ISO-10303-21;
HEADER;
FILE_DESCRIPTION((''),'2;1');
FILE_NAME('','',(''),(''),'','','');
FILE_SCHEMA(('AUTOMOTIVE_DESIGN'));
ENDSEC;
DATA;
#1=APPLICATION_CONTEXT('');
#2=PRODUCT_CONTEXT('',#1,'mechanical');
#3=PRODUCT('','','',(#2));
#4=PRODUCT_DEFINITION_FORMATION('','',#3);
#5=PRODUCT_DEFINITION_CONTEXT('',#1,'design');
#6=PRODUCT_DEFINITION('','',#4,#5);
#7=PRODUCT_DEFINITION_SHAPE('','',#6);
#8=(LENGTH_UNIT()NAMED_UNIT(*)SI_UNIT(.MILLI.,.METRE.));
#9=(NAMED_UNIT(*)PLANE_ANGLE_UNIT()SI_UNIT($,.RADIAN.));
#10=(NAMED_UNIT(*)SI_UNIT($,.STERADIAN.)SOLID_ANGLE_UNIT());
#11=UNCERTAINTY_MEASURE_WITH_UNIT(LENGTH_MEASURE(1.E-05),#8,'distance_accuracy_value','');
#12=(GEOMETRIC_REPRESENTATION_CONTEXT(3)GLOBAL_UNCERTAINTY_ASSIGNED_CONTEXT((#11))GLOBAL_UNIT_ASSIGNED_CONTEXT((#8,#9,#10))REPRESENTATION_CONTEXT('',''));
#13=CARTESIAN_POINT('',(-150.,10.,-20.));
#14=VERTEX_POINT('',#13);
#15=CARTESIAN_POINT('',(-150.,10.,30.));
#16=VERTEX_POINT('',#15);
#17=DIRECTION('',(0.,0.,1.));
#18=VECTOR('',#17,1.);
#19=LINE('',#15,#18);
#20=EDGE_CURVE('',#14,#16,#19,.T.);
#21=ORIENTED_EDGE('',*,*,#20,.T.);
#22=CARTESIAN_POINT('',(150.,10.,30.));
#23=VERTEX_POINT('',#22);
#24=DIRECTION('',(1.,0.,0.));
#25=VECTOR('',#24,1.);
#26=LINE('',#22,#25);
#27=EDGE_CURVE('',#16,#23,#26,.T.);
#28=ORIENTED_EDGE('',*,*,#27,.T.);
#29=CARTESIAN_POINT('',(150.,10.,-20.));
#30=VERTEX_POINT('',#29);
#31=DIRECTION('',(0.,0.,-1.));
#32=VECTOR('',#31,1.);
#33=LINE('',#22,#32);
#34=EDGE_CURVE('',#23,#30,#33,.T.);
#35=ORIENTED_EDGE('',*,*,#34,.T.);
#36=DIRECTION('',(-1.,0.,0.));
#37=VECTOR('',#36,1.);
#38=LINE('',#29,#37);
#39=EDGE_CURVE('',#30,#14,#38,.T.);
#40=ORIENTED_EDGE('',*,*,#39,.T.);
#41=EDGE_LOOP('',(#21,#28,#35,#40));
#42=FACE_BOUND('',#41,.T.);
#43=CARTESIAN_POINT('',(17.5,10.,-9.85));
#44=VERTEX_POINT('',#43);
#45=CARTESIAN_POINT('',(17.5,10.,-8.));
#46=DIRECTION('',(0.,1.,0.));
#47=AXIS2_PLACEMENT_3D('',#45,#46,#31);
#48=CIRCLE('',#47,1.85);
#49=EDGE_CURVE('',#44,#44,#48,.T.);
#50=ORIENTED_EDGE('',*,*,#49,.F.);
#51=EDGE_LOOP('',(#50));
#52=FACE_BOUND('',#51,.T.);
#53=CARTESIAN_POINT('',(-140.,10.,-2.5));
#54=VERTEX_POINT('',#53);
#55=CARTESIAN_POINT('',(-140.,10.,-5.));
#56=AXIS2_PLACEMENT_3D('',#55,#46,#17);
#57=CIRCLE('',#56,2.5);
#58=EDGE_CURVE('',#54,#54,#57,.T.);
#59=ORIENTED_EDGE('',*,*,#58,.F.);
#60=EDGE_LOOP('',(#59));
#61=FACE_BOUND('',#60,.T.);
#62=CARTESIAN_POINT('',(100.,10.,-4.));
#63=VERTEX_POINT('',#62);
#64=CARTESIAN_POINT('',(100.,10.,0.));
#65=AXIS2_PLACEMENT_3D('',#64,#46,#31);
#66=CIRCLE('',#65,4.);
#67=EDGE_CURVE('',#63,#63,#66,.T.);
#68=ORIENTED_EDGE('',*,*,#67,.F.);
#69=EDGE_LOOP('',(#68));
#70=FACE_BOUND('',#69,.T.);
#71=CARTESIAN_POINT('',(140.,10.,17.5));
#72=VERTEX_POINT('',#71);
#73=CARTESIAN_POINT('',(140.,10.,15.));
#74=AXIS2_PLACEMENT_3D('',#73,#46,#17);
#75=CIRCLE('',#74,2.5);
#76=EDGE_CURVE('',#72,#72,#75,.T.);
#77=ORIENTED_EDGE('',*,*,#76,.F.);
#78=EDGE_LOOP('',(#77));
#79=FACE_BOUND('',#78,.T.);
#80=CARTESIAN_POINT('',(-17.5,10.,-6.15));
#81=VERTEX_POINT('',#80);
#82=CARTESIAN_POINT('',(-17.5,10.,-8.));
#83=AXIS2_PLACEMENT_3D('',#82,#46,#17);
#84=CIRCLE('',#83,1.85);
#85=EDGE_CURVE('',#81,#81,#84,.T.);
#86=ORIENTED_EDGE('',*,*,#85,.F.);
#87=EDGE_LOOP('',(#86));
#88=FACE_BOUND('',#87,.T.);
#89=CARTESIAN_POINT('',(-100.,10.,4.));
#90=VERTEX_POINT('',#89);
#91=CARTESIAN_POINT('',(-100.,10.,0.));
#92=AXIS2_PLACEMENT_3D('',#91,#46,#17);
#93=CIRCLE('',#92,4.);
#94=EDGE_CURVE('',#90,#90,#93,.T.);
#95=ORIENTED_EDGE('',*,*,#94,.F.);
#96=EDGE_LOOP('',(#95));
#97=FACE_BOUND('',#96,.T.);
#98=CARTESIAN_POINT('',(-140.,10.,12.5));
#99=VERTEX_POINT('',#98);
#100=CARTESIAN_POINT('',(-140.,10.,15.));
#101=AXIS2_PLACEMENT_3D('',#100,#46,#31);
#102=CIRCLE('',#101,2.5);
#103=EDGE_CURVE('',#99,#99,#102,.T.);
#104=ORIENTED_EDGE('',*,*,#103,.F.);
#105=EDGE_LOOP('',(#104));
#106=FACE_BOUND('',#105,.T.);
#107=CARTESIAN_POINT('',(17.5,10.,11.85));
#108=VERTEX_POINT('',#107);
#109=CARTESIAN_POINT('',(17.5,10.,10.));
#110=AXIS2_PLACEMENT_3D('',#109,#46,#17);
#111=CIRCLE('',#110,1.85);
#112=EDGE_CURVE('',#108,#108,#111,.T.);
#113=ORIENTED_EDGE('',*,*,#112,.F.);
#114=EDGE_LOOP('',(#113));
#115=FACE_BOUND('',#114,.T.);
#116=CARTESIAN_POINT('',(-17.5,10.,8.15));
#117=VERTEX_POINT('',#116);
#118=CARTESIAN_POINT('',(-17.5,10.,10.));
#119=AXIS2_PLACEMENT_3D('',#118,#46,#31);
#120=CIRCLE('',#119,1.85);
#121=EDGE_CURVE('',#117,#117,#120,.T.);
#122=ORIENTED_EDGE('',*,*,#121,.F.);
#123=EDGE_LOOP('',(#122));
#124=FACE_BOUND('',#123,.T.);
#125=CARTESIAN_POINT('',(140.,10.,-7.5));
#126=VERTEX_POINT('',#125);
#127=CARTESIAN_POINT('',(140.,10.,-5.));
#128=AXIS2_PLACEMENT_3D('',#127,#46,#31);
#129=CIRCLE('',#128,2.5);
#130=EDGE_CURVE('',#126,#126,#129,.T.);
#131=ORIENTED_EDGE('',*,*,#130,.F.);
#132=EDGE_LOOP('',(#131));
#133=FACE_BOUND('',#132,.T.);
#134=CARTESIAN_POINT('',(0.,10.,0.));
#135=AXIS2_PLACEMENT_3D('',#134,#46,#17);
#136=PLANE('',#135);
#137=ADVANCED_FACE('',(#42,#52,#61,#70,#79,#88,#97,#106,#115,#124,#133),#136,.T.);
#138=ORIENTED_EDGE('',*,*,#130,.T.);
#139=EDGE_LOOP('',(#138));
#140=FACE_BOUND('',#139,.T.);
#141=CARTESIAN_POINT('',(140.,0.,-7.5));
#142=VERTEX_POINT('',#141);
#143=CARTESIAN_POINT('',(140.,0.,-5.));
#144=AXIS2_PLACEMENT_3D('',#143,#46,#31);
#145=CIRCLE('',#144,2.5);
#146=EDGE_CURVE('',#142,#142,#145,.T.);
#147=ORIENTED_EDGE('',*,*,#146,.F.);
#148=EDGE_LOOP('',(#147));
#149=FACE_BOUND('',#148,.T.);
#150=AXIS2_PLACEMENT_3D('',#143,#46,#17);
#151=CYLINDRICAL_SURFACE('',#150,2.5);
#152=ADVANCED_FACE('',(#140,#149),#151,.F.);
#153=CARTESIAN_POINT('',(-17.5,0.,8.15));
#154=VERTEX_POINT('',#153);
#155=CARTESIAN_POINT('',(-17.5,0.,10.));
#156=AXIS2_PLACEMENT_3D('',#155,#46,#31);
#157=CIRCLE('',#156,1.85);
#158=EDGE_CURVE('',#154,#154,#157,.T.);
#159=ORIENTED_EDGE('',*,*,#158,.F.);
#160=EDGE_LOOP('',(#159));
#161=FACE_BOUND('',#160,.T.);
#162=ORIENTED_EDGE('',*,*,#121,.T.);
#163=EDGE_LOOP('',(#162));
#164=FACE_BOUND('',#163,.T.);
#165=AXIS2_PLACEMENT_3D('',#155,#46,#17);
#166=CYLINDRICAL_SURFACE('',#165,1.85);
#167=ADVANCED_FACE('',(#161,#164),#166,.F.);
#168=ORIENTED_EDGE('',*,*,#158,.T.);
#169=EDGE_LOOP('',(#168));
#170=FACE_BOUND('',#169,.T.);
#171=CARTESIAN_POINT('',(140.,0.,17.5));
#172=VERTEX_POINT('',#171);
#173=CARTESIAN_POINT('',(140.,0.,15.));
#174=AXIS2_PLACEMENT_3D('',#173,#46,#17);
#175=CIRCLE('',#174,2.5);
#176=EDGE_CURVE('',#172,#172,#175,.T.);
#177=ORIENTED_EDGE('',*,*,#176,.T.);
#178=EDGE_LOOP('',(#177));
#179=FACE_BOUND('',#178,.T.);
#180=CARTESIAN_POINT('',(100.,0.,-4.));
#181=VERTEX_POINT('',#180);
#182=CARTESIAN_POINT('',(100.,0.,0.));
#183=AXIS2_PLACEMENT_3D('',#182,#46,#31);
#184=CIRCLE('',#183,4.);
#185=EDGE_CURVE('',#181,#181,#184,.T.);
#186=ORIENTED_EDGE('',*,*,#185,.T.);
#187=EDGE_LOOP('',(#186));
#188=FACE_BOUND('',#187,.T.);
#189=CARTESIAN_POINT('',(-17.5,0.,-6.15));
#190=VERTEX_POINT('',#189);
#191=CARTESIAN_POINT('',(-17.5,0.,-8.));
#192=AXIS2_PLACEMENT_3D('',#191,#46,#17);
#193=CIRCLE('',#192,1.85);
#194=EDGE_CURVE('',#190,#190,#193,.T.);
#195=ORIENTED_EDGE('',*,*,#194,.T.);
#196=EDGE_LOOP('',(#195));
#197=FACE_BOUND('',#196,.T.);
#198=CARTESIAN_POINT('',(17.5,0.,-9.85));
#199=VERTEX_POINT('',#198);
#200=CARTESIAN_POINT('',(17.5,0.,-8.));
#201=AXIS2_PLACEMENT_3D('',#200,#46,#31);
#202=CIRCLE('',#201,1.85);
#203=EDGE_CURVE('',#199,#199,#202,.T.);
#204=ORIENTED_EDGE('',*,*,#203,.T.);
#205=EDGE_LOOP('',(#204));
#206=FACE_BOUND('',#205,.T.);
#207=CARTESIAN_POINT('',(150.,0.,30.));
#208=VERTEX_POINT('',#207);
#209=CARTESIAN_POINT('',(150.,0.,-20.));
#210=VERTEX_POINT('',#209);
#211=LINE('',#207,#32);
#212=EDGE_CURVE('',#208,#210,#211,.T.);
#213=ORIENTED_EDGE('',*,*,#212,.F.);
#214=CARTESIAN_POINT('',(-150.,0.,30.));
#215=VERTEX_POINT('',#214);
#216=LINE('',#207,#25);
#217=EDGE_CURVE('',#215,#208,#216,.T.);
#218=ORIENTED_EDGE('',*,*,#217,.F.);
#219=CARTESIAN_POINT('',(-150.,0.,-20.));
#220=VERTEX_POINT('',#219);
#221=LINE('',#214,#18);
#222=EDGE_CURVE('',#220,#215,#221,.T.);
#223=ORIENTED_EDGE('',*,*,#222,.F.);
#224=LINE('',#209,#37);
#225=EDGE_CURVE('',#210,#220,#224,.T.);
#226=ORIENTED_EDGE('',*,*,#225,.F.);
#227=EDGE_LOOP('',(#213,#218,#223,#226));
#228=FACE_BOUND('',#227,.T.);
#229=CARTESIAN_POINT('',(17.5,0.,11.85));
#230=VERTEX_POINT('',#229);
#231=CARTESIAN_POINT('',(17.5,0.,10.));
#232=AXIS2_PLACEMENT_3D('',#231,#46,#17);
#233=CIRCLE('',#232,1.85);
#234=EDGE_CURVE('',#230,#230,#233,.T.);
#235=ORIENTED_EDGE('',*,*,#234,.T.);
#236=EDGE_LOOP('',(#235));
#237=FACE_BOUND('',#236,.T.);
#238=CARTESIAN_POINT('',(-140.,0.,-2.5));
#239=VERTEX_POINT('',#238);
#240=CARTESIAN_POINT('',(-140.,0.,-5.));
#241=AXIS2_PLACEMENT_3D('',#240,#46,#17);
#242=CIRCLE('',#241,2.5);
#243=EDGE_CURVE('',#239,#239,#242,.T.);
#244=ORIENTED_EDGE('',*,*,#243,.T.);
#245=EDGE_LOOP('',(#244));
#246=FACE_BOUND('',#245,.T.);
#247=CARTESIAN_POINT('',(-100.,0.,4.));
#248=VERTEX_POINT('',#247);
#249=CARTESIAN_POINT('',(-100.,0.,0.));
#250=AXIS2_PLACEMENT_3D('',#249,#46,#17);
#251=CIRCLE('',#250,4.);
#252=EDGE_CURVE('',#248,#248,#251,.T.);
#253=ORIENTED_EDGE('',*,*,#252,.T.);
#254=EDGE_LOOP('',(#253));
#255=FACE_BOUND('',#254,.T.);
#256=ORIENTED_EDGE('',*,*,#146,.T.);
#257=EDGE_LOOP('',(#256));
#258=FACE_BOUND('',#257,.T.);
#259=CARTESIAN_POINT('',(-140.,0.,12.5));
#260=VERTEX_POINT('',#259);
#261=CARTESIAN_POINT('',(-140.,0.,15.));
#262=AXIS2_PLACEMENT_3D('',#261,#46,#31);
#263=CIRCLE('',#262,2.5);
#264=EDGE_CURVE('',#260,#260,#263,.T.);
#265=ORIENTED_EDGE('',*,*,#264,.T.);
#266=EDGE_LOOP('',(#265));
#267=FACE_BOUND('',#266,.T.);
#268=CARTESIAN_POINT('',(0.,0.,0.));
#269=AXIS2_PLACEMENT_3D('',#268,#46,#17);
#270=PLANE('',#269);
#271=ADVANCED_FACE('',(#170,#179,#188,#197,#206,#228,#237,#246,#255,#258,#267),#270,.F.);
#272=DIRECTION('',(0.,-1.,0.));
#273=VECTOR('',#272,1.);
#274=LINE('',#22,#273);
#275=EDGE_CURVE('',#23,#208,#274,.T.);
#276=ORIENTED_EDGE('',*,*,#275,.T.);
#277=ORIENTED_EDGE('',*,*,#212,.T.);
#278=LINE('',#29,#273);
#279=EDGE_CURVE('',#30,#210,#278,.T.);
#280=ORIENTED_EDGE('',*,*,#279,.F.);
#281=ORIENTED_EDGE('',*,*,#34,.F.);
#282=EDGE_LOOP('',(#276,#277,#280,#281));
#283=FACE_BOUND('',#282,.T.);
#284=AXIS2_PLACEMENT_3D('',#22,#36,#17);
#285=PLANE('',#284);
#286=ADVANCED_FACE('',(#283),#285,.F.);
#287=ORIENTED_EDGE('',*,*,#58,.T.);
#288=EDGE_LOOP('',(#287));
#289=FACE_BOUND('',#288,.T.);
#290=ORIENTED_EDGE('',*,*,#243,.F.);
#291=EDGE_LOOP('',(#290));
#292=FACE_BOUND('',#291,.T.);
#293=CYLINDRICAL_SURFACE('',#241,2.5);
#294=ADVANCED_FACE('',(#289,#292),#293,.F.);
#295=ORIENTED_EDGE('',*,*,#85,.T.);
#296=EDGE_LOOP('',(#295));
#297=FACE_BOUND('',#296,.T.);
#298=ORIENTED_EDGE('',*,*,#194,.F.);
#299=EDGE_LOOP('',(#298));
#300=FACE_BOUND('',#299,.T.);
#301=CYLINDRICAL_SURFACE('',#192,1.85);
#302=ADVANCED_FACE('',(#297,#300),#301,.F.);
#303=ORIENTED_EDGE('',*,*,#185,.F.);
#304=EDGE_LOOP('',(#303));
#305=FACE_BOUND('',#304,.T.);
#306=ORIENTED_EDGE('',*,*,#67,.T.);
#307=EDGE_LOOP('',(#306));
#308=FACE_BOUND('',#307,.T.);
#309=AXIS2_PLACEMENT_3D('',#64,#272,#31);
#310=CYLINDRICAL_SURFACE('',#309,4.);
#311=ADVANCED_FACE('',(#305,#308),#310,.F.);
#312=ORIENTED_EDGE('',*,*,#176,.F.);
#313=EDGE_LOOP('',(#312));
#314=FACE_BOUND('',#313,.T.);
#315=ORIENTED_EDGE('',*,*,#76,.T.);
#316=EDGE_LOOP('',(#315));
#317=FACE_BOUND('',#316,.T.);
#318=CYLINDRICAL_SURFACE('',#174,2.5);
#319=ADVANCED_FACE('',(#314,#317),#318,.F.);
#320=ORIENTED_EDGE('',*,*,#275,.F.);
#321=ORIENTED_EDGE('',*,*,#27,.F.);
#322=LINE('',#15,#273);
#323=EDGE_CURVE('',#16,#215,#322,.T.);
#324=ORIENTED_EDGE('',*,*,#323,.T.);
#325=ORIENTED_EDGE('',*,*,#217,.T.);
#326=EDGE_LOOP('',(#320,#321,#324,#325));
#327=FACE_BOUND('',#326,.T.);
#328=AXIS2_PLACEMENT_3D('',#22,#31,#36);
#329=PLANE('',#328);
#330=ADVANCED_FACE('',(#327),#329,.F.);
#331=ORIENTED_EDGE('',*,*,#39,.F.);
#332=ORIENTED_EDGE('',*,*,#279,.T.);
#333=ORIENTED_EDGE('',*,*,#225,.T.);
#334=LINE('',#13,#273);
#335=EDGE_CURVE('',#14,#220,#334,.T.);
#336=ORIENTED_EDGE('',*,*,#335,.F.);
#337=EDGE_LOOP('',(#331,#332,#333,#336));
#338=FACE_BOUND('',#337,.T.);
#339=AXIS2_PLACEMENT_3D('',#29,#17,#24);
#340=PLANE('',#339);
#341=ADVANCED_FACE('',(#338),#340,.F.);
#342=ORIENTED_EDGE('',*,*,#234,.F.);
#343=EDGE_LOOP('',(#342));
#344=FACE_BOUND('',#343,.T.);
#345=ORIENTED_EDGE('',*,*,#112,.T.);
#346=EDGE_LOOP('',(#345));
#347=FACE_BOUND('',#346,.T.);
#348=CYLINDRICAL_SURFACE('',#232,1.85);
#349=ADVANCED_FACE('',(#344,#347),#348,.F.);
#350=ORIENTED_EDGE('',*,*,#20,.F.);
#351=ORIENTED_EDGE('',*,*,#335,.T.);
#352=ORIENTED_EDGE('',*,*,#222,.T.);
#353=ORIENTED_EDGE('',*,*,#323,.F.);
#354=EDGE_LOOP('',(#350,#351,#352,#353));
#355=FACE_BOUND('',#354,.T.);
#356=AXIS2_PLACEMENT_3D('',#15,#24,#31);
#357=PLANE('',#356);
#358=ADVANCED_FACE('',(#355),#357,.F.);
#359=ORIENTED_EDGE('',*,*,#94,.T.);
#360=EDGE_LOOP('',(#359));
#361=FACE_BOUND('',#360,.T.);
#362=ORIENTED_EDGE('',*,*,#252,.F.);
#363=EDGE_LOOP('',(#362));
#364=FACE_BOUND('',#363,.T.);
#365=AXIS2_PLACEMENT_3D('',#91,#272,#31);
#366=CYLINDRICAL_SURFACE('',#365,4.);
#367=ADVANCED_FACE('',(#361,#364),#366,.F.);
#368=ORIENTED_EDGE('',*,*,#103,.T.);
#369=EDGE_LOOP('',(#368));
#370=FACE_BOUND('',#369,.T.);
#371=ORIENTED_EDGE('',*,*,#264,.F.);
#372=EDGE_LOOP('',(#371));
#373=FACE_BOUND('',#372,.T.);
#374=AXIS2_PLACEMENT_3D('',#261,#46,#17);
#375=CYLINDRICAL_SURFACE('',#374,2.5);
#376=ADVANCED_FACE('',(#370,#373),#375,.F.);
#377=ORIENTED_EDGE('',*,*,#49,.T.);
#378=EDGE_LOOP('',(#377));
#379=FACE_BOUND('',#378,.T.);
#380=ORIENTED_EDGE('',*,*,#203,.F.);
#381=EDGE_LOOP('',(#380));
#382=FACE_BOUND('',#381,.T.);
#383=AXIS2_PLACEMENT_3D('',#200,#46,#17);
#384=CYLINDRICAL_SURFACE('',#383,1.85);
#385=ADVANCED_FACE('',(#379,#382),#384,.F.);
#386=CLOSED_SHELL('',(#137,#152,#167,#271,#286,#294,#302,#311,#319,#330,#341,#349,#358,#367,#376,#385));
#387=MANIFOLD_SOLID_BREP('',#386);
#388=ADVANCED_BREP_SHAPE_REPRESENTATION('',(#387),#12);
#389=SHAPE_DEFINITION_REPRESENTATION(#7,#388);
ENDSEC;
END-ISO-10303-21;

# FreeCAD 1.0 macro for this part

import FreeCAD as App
import Part
import Sketcher

V = App.Vector


def add_polygon(sketch, points):
    """Adds a closed chain of lines whose ends are joined by coincident constraints."""
    first, n = sketch.GeometryCount, len(points)
    for a, b in zip(points, points[1:] + points[:1]):
        sketch.addGeometry(Part.LineSegment(App.Vector(*a, 0), App.Vector(*b, 0)), False)
    for i in range(n):
        sketch.addConstraint(Sketcher.Constraint("Coincident", first + i, 2, first + (i + 1) % n, 1))

doc = App.newDocument("Part")
params = doc.addObject("Spreadsheet::Sheet", "Params")
for row, (alias, value) in enumerate([
    ("sketch1_diameter", "8 mm"),
    ("sketch1_width", "300 mm"),
    ("sketch1_height", "50 mm"),
    ("pad1_length", "10 mm"),
    ("sketch2_diameter", "5 mm"),
    ("sketch3_diameter", "3.7 mm"),
], start=1):
    params.set(f"A{row}", alias)
    params.set(f"B{row}", "=" + value)
    params.setAlias(f"B{row}", alias)

body = doc.addObject("PartDesign::Body", "Body")

sketch1 = doc.addObject("Sketcher::SketchObject", "Sketch")
body.addObject(sketch1)
sketch1.AttachmentSupport = (doc.XZ_Plane, [""])
sketch1.MapMode = "FlatFace"
add_polygon(sketch1, [(-150, -20), (-150, 30), (150, 30), (150, -20)])
sketch1.addGeometry(Part.Circle(V(-100, 0, 0), V(0, 0, 1), 4), False)
sketch1.addGeometry(Part.Circle(V(100, 0, 0), V(0, 0, 1), 4), False)
sketch1.addConstraint(Sketcher.Constraint("Vertical", 0))
sketch1.addConstraint(Sketcher.Constraint("Horizontal", 1))
sketch1.addConstraint(Sketcher.Constraint("Vertical", 2))
sketch1.addConstraint(Sketcher.Constraint("Horizontal", 3))
sketch1.addConstraint(Sketcher.Constraint("Equal", 4, 5))
sketch1.addConstraint(Sketcher.Constraint("Symmetric", 4, 3, 5, 3, -1, 1))
sketch1.addConstraint(Sketcher.Constraint("PointOnObject", 4, 3, -1))
sketch1.addConstraint(Sketcher.Constraint("Diameter", 4, 8.0))
sketch1.addConstraint(Sketcher.Constraint("DistanceX", 1, 1, 1, 2, 300.0))
sketch1.addConstraint(Sketcher.Constraint("DistanceY", 0, 1, 0, 2, 50.0))
sketch1.addConstraint(Sketcher.Constraint("DistanceX", 4, 3, -1, 1, 100.0))
sketch1.addConstraint(Sketcher.Constraint("DistanceX", 0, 2, -1, 1, 150.0))
sketch1.addConstraint(Sketcher.Constraint("DistanceY", -1, 1, 0, 2, 30.0))
sketch1.setExpression("Constraints[11]", "Params.sketch1_diameter")
sketch1.setExpression("Constraints[12]", "Params.sketch1_width")
sketch1.setExpression("Constraints[13]", "Params.sketch1_height")
pad1 = doc.addObject("PartDesign::Pad", "Pad")
body.addObject(pad1)
pad1.Profile = sketch1
pad1.setExpression("Length", "Params.pad1_length")
pad1.Reversed = True

sketch2 = doc.addObject("Sketcher::SketchObject", "Sketch001")
body.addObject(sketch2)
sketch2.AttachmentSupport = (doc.XZ_Plane, [""])
sketch2.MapMode = "FlatFace"
sketch2.AttachmentOffset = App.Placement(V(0, 0, -10), App.Rotation())
sketch2.addGeometry(Part.Circle(V(-140, -5, 0), V(0, 0, 1), 2.5), False)
sketch2.addGeometry(Part.Circle(V(-140, 15, 0), V(0, 0, 1), 2.5), False)
sketch2.addGeometry(Part.Circle(V(140, 15, 0), V(0, 0, 1), 2.5), False)
sketch2.addGeometry(Part.Circle(V(140, -5, 0), V(0, 0, 1), 2.5), False)
sketch2.addConstraint(Sketcher.Constraint("Equal", 0, 1))
sketch2.addConstraint(Sketcher.Constraint("Equal", 1, 2))
sketch2.addConstraint(Sketcher.Constraint("Equal", 2, 3))
sketch2.addConstraint(Sketcher.Constraint("Symmetric", 1, 3, 2, 3, -2))
sketch2.addConstraint(Sketcher.Constraint("Symmetric", 0, 3, 3, 3, -2))
sketch2.addConstraint(Sketcher.Constraint("Vertical", 0, 3, 1, 3))
sketch2.addConstraint(Sketcher.Constraint("Diameter", 0, 5.0))
sketch2.addConstraint(Sketcher.Constraint("DistanceX", 0, 3, -1, 1, 140.0))
sketch2.addConstraint(Sketcher.Constraint("DistanceY", 0, 3, -1, 1, 5.0))
sketch2.addConstraint(Sketcher.Constraint("DistanceY", -1, 1, 1, 3, 15.0))
sketch2.setExpression("Constraints[6]", "Params.sketch2_diameter")
pocket1 = doc.addObject("PartDesign::Pocket", "Pocket")
body.addObject(pocket1)
pocket1.Profile = sketch2
pocket1.Type = "ThroughAll"
pocket1.Reversed = True

sketch3 = doc.addObject("Sketcher::SketchObject", "Sketch002")
body.addObject(sketch3)
sketch3.AttachmentSupport = (doc.XZ_Plane, [""])
sketch3.MapMode = "FlatFace"
sketch3.AttachmentOffset = App.Placement(V(0, 0, -10), App.Rotation())
sketch3.addGeometry(Part.Circle(V(-17.5, -8, 0), V(0, 0, 1), 1.85), False)
sketch3.addGeometry(Part.Circle(V(17.5, -8, 0), V(0, 0, 1), 1.85), False)
sketch3.addGeometry(Part.Circle(V(-17.5, 10, 0), V(0, 0, 1), 1.85), False)
sketch3.addGeometry(Part.Circle(V(17.5, 10, 0), V(0, 0, 1), 1.85), False)
sketch3.addConstraint(Sketcher.Constraint("Equal", 0, 1))
sketch3.addConstraint(Sketcher.Constraint("Equal", 1, 2))
sketch3.addConstraint(Sketcher.Constraint("Equal", 2, 3))
sketch3.addConstraint(Sketcher.Constraint("Symmetric", 0, 3, 1, 3, -2))
sketch3.addConstraint(Sketcher.Constraint("Symmetric", 2, 3, 3, 3, -2))
sketch3.addConstraint(Sketcher.Constraint("Vertical", 0, 3, 2, 3))
sketch3.addConstraint(Sketcher.Constraint("Diameter", 0, 3.7))
sketch3.addConstraint(Sketcher.Constraint("DistanceY", 0, 3, -1, 1, 8.0))
sketch3.addConstraint(Sketcher.Constraint("DistanceY", -1, 1, 2, 3, 10.0))
sketch3.addConstraint(Sketcher.Constraint("DistanceX", 0, 3, 1, 3, 35.0))
sketch3.setExpression("Constraints[6]", "Params.sketch3_diameter")
pocket2 = doc.addObject("PartDesign::Pocket", "Pocket001")
body.addObject(pocket2)
pocket2.Profile = sketch3
pocket2.Type = "ThroughAll"
pocket2.Reversed = True

doc.recompute()
